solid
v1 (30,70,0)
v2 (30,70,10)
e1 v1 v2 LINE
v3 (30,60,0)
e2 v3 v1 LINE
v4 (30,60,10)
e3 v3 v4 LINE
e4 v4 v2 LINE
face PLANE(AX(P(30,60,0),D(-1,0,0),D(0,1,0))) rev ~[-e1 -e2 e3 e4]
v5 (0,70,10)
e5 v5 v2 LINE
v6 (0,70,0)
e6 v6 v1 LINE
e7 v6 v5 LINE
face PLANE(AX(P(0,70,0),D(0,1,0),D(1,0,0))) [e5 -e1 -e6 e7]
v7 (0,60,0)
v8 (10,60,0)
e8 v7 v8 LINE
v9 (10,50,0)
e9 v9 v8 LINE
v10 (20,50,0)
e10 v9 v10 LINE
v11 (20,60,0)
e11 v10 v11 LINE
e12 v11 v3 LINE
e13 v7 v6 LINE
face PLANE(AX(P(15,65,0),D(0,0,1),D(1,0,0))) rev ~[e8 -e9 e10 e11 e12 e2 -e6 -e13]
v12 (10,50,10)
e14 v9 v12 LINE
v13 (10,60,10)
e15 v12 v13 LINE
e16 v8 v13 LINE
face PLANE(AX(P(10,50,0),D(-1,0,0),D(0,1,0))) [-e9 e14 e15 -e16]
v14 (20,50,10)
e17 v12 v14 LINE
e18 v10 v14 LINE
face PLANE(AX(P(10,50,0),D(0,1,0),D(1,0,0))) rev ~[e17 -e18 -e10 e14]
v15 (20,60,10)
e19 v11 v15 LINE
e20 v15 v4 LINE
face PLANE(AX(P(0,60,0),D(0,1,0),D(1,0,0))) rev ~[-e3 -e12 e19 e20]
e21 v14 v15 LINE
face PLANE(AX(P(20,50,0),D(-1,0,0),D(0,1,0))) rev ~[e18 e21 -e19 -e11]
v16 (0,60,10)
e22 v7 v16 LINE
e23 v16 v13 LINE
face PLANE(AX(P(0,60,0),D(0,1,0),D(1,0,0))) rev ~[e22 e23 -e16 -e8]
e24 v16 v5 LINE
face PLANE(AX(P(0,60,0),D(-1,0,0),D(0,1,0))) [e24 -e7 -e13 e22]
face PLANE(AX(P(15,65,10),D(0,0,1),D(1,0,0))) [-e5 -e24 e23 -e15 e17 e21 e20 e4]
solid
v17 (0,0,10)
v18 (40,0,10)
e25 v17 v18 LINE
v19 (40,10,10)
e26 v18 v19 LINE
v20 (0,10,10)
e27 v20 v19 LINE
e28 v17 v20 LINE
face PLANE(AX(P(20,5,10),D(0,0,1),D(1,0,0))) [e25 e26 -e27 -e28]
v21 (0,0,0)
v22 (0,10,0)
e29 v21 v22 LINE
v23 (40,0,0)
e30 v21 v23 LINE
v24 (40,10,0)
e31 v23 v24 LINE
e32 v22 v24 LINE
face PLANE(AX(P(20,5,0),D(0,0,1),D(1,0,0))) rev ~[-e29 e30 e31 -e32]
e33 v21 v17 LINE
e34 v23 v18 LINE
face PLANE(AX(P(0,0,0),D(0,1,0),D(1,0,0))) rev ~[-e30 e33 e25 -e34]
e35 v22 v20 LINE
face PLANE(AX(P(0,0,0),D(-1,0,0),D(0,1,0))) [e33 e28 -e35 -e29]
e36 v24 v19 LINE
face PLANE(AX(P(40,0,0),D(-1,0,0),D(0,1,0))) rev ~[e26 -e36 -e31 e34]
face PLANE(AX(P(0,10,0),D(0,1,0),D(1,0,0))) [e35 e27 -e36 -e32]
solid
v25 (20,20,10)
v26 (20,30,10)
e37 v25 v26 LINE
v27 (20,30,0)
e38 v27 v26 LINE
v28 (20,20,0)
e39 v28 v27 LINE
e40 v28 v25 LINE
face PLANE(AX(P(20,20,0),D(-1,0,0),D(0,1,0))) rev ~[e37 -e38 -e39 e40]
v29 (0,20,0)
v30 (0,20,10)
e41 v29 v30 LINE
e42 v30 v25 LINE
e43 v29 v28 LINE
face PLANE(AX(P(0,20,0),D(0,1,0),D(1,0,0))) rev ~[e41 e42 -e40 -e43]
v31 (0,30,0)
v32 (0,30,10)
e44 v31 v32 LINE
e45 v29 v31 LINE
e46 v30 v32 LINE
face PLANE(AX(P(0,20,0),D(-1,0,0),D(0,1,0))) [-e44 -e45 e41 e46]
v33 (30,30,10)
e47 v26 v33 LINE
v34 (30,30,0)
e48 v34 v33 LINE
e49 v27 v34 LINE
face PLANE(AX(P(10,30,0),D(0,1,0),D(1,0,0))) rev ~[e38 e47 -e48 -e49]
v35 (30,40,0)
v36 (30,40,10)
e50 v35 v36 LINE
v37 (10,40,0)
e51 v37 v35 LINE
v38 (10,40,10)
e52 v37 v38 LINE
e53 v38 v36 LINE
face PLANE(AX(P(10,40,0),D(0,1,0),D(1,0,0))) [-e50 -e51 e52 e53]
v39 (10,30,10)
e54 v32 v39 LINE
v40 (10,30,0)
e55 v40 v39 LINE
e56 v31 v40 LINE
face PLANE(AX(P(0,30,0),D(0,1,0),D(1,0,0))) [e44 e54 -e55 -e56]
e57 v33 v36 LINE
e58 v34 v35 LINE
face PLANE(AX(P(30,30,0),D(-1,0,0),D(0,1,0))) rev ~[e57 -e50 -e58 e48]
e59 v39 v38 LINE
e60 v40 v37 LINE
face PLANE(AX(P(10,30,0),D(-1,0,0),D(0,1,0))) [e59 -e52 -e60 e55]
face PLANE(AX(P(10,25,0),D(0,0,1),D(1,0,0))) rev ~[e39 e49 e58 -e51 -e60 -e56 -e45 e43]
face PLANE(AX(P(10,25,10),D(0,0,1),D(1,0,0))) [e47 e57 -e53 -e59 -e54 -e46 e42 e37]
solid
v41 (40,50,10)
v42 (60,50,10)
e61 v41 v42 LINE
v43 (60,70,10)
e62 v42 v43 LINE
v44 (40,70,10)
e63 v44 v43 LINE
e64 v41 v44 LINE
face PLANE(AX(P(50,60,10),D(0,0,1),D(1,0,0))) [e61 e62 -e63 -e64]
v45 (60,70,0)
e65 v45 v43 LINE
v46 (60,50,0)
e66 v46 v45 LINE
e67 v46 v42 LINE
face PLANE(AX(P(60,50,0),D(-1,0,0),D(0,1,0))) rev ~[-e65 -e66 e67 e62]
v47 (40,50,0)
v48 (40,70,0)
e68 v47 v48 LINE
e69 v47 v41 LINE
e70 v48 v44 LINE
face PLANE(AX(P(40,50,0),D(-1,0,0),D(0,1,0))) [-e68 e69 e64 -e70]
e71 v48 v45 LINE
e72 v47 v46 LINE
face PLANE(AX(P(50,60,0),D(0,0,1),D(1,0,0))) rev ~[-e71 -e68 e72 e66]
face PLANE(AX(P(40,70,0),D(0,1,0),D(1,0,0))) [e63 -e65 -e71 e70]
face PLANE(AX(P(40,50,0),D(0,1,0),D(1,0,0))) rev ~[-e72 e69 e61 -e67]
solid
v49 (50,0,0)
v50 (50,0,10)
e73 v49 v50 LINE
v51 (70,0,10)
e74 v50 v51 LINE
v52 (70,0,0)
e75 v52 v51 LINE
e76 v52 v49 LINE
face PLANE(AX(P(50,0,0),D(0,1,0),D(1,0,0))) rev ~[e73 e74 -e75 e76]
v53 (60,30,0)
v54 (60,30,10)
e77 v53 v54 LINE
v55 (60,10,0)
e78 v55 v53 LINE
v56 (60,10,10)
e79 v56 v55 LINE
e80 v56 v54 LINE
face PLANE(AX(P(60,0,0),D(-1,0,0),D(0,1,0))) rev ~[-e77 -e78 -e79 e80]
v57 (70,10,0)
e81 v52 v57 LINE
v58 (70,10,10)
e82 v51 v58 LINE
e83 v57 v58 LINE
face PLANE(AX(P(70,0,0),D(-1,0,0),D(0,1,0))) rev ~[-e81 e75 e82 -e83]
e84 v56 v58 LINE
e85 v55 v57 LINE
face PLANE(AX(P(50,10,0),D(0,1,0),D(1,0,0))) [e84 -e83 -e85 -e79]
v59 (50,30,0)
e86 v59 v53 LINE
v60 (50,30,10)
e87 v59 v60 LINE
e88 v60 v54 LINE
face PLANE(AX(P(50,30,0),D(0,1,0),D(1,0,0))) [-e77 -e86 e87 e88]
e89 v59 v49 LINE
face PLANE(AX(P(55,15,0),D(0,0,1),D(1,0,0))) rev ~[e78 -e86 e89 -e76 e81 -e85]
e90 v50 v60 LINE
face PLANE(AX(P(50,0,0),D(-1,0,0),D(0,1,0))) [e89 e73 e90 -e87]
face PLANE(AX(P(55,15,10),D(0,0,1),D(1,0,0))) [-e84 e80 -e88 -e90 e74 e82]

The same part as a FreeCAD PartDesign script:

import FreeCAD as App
import Part
import Sketcher


def add_polygon(sketch, points):
    """Adds a closed chain of lines whose ends are joined by coincident constraints."""
    first, n = sketch.GeometryCount, len(points)
    for a, b in zip(points, points[1:] + points[:1]):
        sketch.addGeometry(Part.LineSegment(App.Vector(*a, 0), App.Vector(*b, 0)), False)
    for i in range(n):
        sketch.addConstraint(Sketcher.Constraint("Coincident", first + i, 2, first + (i + 1) % n, 1))

doc = App.newDocument("Part")
body = doc.addObject("PartDesign::Body", "Body")

sketch1 = body.newObject("Sketcher::SketchObject", "Sketch")
sketch1.AttachmentSupport = (doc.getObject("XY_Plane"), [""])
sketch1.MapMode = "FlatFace"
add_polygon(sketch1, [(0, 10), (0, 0), (40, 0), (40, 10)])
sketch1.addConstraint([
    Sketcher.Constraint("Vertical", 0),
    Sketcher.Constraint("Horizontal", 1),
    Sketcher.Constraint("Vertical", 2),
    Sketcher.Constraint("Horizontal", 3),
    Sketcher.Constraint("Coincident", 0, 2, -1, 1),
    Sketcher.Constraint("DistanceX", 1, 1, 1, 2, 40.0),
    Sketcher.Constraint("DistanceY", 0, 2, 0, 1, 10.0),
])
pad1 = body.newObject("PartDesign::Pad", "Pad")
pad1.Profile = sketch1
pad1.Length = 10
body2 = doc.addObject("PartDesign::Body", "Body001")

sketch2 = body2.newObject("Sketcher::SketchObject", "Sketch001")
sketch2.AttachmentSupport = (doc.getObject("XY_Plane001"), [""])
sketch2.MapMode = "FlatFace"
add_polygon(sketch2, [(0, 30), (0, 20), (20, 20), (20, 30)])
sketch2.addConstraint([
    Sketcher.Constraint("Vertical", 0),
    Sketcher.Constraint("Horizontal", 1),
    Sketcher.Constraint("Vertical", 2),
    Sketcher.Constraint("Horizontal", 3),
    Sketcher.Constraint("PointOnObject", 0, 2, -2),
    Sketcher.Constraint("DistanceX", 1, 1, 1, 2, 20.0),
    Sketcher.Constraint("DistanceY", 0, 2, 0, 1, 10.0),
    Sketcher.Constraint("DistanceY", -1, 1, 0, 2, 20.0),
])
pad2 = body2.newObject("PartDesign::Pad", "Pad001")
pad2.Profile = sketch2
pad2.Length = 10
body3 = doc.addObject("PartDesign::Body", "Body002")

sketch3 = body3.newObject("Sketcher::SketchObject", "Sketch002")
sketch3.AttachmentSupport = (doc.getObject("XY_Plane002"), [""])
sketch3.MapMode = "FlatFace"
add_polygon(sketch3, [(10, 40), (10, 30), (30, 30), (30, 40)])
sketch3.addConstraint([
    Sketcher.Constraint("Vertical", 0),
    Sketcher.Constraint("Horizontal", 1),
    Sketcher.Constraint("Vertical", 2),
    Sketcher.Constraint("Horizontal", 3),
    Sketcher.Constraint("DistanceX", 1, 1, 1, 2, 20.0),
    Sketcher.Constraint("DistanceY", 0, 2, 0, 1, 10.0),
    Sketcher.Constraint("DistanceX", -1, 1, 0, 2, 10.0),
    Sketcher.Constraint("DistanceY", -1, 1, 0, 2, 30.0),
])
pad3 = body3.newObject("PartDesign::Pad", "Pad002")
pad3.Profile = sketch3
pad3.Length = 10
doc.recompute()

boolean = body3.newObject("PartDesign::Boolean", "Boolean")
boolean.Type = "Fuse"
boolean.addObjects([body2])
body4 = doc.addObject("PartDesign::Body", "Body003")

sketch4 = body4.newObject("Sketcher::SketchObject", "Sketch003")
sketch4.AttachmentSupport = (doc.getObject("XY_Plane003"), [""])
sketch4.MapMode = "FlatFace"
add_polygon(sketch4, [(10, 60), (10, 50), (20, 50), (20, 60)])
sketch4.addConstraint([
    Sketcher.Constraint("Vertical", 0),
    Sketcher.Constraint("Horizontal", 1),
    Sketcher.Constraint("Vertical", 2),
    Sketcher.Constraint("Horizontal", 3),
    Sketcher.Constraint("Equal", 3, 0),
    Sketcher.Constraint("DistanceX", 1, 1, 1, 2, 10.0),
    Sketcher.Constraint("DistanceX", -1, 1, 0, 2, 10.0),
    Sketcher.Constraint("DistanceY", -1, 1, 0, 2, 50.0),
])
pad4 = body4.newObject("PartDesign::Pad", "Pad003")
pad4.Profile = sketch4
pad4.Length = 10
body5 = doc.addObject("PartDesign::Body", "Body004")

sketch5 = body5.newObject("Sketcher::SketchObject", "Sketch004")
sketch5.AttachmentSupport = (doc.getObject("XY_Plane004"), [""])
sketch5.MapMode = "FlatFace"
add_polygon(sketch5, [(0, 70), (0, 60), (30, 60), (30, 70)])
sketch5.addConstraint([
    Sketcher.Constraint("Vertical", 0),
    Sketcher.Constraint("Horizontal", 1),
    Sketcher.Constraint("Vertical", 2),
    Sketcher.Constraint("Horizontal", 3),
    Sketcher.Constraint("PointOnObject", 0, 2, -2),
    Sketcher.Constraint("DistanceX", 1, 1, 1, 2, 30.0),
    Sketcher.Constraint("DistanceY", 0, 2, 0, 1, 10.0),
    Sketcher.Constraint("DistanceY", -1, 1, 0, 2, 60.0),
])
pad5 = body5.newObject("PartDesign::Pad", "Pad004")
pad5.Profile = sketch5
pad5.Length = 10
doc.recompute()

boolean2 = body5.newObject("PartDesign::Boolean", "Boolean001")
boolean2.Type = "Fuse"
boolean2.addObjects([body4])
body6 = doc.addObject("PartDesign::Body", "Body005")

sketch6 = body6.newObject("Sketcher::SketchObject", "Sketch005")
sketch6.AttachmentSupport = (doc.getObject("XY_Plane005"), [""])
sketch6.MapMode = "FlatFace"
add_polygon(sketch6, [(40, 70), (40, 50), (60, 50), (60, 70)])
sketch6.addConstraint([
    Sketcher.Constraint("Vertical", 0),
    Sketcher.Constraint("Horizontal", 1),
    Sketcher.Constraint("Vertical", 2),
    Sketcher.Constraint("Horizontal", 3),
    Sketcher.Constraint("Equal", 3, 0),
    Sketcher.Constraint("DistanceX", 1, 1, 1, 2, 20.0),
    Sketcher.Constraint("DistanceX", -1, 1, 0, 2, 40.0),
    Sketcher.Constraint("DistanceY", -1, 1, 0, 2, 50.0),
])
pad6 = body6.newObject("PartDesign::Pad", "Pad005")
pad6.Profile = sketch6
pad6.Length = 10
body7 = doc.addObject("PartDesign::Body", "Body006")

sketch7 = body7.newObject("Sketcher::SketchObject", "Sketch006")
sketch7.AttachmentSupport = (doc.getObject("XY_Plane006"), [""])
sketch7.MapMode = "FlatFace"
add_polygon(sketch7, [(50, 10), (50, 0), (70, 0), (70, 10)])
sketch7.addConstraint([
    Sketcher.Constraint("Vertical", 0),
    Sketcher.Constraint("Horizontal", 1),
    Sketcher.Constraint("Vertical", 2),
    Sketcher.Constraint("Horizontal", 3),
    Sketcher.Constraint("PointOnObject", 0, 2, -1),
    Sketcher.Constraint("DistanceX", 1, 1, 1, 2, 20.0),
    Sketcher.Constraint("DistanceY", 0, 2, 0, 1, 10.0),
    Sketcher.Constraint("DistanceX", -1, 1, 0, 2, 50.0),
])
pad7 = body7.newObject("PartDesign::Pad", "Pad006")
pad7.Profile = sketch7
pad7.Length = 10
body8 = doc.addObject("PartDesign::Body", "Body007")

sketch8 = body8.newObject("Sketcher::SketchObject", "Sketch007")
sketch8.AttachmentSupport = (doc.getObject("XY_Plane007"), [""])
sketch8.MapMode = "FlatFace"
add_polygon(sketch8, [(50, 30), (50, 0), (60, 0), (60, 30)])
sketch8.addConstraint([
    Sketcher.Constraint("Vertical", 0),
    Sketcher.Constraint("Horizontal", 1),
    Sketcher.Constraint("Vertical", 2),
    Sketcher.Constraint("Horizontal", 3),
    Sketcher.Constraint("PointOnObject", 0, 2, -1),
    Sketcher.Constraint("DistanceX", 1, 1, 1, 2, 10.0),
    Sketcher.Constraint("DistanceY", 0, 2, 0, 1, 30.0),
    Sketcher.Constraint("DistanceX", -1, 1, 0, 2, 50.0),
])
pad8 = body8.newObject("PartDesign::Pad", "Pad007")
pad8.Profile = sketch8
pad8.Length = 10
doc.recompute()

boolean3 = body8.newObject("PartDesign::Boolean", "Boolean002")
boolean3.Type = "Fuse"
boolean3.addObjects([body7])

doc.recompute()
